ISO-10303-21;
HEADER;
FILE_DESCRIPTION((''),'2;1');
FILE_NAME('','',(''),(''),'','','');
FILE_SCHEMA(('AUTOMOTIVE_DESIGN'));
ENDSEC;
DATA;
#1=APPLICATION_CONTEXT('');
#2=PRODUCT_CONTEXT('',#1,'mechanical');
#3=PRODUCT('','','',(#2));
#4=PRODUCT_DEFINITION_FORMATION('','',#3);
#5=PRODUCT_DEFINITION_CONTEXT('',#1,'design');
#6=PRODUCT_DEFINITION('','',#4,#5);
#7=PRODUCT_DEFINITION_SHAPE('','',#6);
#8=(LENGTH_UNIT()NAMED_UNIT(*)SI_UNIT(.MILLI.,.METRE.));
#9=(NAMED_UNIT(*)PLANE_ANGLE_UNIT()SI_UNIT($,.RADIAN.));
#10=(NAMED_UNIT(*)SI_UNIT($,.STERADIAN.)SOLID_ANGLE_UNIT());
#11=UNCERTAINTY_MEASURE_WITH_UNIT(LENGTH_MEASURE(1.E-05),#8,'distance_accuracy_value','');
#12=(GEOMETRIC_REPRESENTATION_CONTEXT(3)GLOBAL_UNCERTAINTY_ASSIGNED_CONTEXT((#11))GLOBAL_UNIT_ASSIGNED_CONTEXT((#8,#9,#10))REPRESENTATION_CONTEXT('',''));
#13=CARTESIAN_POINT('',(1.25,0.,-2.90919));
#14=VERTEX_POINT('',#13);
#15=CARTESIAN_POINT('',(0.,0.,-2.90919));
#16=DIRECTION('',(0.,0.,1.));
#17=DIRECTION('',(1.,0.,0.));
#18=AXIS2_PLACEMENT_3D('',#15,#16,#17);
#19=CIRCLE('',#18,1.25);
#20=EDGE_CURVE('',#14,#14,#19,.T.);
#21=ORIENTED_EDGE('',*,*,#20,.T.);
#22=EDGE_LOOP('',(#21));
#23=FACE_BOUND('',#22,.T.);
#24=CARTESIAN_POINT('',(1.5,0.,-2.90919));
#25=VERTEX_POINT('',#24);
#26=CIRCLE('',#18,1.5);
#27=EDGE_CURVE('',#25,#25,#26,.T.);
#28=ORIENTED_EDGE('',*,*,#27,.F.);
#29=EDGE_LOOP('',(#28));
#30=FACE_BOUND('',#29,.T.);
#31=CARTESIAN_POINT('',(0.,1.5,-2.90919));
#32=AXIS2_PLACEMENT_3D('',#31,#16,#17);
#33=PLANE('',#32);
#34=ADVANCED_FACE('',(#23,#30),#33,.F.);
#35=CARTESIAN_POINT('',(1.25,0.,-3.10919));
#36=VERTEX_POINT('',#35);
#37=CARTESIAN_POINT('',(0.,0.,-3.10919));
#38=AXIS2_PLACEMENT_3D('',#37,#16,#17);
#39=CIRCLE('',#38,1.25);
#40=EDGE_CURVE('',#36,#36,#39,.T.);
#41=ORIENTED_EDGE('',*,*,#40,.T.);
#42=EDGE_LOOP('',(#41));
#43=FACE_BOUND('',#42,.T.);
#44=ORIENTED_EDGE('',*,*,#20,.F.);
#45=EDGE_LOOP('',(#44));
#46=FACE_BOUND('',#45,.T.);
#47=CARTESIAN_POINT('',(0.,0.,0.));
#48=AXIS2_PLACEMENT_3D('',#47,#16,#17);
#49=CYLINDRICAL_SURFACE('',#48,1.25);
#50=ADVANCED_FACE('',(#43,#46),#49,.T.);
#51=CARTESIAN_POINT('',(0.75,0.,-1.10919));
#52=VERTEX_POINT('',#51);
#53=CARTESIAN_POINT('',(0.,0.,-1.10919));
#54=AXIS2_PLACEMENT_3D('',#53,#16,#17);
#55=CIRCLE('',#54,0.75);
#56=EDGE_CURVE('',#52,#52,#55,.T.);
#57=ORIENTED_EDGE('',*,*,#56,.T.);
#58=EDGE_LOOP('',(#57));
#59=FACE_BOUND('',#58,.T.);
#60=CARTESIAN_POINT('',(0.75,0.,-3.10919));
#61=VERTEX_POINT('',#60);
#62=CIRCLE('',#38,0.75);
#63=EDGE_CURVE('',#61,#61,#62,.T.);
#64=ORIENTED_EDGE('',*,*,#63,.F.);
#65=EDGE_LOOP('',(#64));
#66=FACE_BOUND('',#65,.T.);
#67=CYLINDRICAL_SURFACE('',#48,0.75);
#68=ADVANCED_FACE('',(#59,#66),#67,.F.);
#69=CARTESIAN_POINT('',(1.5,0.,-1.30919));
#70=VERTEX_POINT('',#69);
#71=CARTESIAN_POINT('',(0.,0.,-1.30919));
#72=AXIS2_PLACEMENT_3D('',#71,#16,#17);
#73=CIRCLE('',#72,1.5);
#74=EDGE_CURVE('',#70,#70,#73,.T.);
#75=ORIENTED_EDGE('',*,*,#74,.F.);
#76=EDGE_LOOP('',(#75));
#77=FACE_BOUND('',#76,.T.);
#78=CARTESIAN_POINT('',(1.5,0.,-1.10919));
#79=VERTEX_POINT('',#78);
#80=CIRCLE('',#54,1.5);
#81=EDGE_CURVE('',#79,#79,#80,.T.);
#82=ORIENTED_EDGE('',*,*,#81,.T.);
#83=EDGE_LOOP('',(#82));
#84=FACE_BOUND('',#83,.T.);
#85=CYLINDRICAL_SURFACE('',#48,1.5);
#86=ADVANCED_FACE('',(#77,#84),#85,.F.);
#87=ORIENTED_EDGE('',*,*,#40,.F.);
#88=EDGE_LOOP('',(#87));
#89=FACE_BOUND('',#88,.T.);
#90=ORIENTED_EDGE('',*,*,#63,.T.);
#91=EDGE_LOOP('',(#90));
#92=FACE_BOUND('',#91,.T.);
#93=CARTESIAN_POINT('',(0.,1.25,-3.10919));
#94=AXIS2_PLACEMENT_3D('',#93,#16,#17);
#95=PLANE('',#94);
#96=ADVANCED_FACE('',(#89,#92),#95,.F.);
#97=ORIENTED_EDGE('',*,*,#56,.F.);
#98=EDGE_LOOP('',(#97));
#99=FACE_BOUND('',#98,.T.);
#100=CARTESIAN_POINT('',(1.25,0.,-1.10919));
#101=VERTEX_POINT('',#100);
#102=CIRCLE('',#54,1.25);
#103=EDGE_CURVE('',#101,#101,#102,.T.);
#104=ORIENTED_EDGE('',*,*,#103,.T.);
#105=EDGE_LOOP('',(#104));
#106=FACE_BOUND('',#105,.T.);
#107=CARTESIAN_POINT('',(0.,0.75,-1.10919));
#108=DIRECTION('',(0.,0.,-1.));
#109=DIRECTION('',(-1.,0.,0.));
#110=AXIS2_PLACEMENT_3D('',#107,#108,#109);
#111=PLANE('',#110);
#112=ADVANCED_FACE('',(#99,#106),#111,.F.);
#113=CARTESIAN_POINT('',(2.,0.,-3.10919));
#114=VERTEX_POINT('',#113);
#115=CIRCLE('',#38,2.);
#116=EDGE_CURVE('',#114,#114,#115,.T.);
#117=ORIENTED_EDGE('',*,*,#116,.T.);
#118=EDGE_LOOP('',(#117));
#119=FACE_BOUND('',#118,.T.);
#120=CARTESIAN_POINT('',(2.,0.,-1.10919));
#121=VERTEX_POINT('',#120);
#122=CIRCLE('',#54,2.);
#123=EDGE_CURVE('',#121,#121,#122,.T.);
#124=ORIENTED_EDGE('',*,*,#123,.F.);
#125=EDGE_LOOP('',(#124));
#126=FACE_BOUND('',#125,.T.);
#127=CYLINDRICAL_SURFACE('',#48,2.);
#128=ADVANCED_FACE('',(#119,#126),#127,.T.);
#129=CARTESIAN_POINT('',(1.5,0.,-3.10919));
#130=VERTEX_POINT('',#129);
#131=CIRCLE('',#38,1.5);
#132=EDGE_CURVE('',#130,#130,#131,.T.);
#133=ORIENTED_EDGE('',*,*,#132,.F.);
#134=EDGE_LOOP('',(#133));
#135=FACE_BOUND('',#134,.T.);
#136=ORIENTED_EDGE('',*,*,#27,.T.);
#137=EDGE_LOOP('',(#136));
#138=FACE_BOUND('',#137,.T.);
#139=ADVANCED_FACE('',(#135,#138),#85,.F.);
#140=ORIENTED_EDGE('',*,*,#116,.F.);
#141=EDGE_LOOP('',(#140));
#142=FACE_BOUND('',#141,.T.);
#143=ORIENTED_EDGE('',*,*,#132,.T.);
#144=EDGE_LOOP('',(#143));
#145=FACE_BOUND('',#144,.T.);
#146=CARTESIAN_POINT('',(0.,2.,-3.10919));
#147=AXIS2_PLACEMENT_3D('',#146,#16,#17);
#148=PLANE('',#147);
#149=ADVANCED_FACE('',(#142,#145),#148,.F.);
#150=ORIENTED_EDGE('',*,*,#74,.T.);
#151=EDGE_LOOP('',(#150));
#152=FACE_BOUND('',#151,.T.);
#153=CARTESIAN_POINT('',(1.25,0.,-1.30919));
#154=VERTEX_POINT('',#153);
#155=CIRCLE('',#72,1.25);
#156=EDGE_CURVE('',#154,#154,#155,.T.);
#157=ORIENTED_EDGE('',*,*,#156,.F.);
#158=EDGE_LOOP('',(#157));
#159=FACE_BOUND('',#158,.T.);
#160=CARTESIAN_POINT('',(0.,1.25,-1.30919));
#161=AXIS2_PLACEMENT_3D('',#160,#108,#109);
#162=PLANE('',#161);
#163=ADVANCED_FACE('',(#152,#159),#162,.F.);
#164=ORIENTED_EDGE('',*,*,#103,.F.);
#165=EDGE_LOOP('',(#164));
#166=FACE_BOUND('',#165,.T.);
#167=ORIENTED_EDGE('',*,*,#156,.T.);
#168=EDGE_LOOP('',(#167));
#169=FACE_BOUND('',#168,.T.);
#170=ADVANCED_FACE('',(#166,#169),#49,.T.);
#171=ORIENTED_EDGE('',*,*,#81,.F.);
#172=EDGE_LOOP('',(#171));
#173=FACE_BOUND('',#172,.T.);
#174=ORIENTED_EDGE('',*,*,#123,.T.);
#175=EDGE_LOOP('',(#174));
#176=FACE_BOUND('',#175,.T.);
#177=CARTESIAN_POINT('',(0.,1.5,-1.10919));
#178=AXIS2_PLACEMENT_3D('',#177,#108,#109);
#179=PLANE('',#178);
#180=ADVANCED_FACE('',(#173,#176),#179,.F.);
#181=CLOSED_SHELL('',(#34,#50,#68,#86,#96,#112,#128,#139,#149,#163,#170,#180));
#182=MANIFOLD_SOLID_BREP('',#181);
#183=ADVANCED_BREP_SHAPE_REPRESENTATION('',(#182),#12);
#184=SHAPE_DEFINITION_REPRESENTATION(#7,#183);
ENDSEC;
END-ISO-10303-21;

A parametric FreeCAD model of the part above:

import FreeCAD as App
import Part
import Sketcher
from FreeCAD import Vector

doc = App.newDocument("Part")
params = doc.addObject("Spreadsheet::Sheet", "Params")
for row, (alias, value) in enumerate([
    ("sketch1_height", "2 mm"),
    ("sketch1_width", "0.5 mm"),
    ("sketch1_height2", "0.2 mm"),
    ("sketch1_width2", "0.25 mm"),
    ("revolution_angle", "360 deg"),
], start=1):
    params.set(f"A{row}", alias)
    params.set(f"B{row}", "=" + value)
    params.setAlias(f"B{row}", alias)

body = doc.addObject("PartDesign::Body", "Body")

# Sketch on YZ plane
sketch1 = body.newObject("Sketcher::SketchObject", "Sketch")
sketch1.AttachmentSupport = (doc.getObject("YZ_Plane"), [""])
sketch1.MapMode = "FlatFace"
sketch1.addGeometry([
    Part.LineSegment(Vector(2, -3.11, 0), Vector(2, -1.11, 0)),  # 0
    Part.LineSegment(Vector(2, -1.11, 0), Vector(1.5, -1.11, 0)),  # 1
    Part.LineSegment(Vector(1.5, -1.11, 0), Vector(1.5, -1.31, 0)),  # 2
    Part.LineSegment(Vector(1.5, -1.31, 0), Vector(1.25, -1.31, 0)),  # 3
    Part.LineSegment(Vector(1.25, -1.31, 0), Vector(1.25, -1.11, 0)),  # 4
    Part.LineSegment(Vector(1.25, -1.11, 0), Vector(0.75, -1.11, 0)),  # 5
    Part.LineSegment(Vector(0.75, -1.11, 0), Vector(0.75, -3.11, 0)),  # 6
    Part.LineSegment(Vector(0.75, -3.11, 0), Vector(1.25, -3.11, 0)),  # 7
    Part.LineSegment(Vector(1.25, -3.11, 0), Vector(1.25, -2.91, 0)),  # 8
    Part.LineSegment(Vector(1.25, -2.91, 0), Vector(1.5, -2.91, 0)),  # 9
    Part.LineSegment(Vector(1.5, -2.91, 0), Vector(1.5, -3.11, 0)),  # 10
    Part.LineSegment(Vector(1.5, -3.11, 0), Vector(2, -3.11, 0)),  # 11
], False)
sketch1.addConstraint([
    Sketcher.Constraint("Coincident", 0, 2, 1, 1),
    Sketcher.Constraint("Coincident", 1, 2, 2, 1),
    Sketcher.Constraint("Coincident", 2, 2, 3, 1),
    Sketcher.Constraint("Coincident", 3, 2, 4, 1),
    Sketcher.Constraint("Coincident", 4, 2, 5, 1),
    Sketcher.Constraint("Coincident", 5, 2, 6, 1),
    Sketcher.Constraint("Coincident", 6, 2, 7, 1),
    Sketcher.Constraint("Coincident", 7, 2, 8, 1),
    Sketcher.Constraint("Coincident", 8, 2, 9, 1),
    Sketcher.Constraint("Coincident", 9, 2, 10, 1),
    Sketcher.Constraint("Coincident", 10, 2, 11, 1),
    Sketcher.Constraint("Coincident", 11, 2, 0, 1),
    Sketcher.Constraint("Vertical", 0),
    Sketcher.Constraint("Horizontal", 1),
    Sketcher.Constraint("Vertical", 2),
    Sketcher.Constraint("Horizontal", 3),
    Sketcher.Constraint("Vertical", 4),
    Sketcher.Constraint("Horizontal", 5),
    Sketcher.Constraint("Vertical", 6),
    Sketcher.Constraint("Horizontal", 7),
    Sketcher.Constraint("Vertical", 8),
    Sketcher.Constraint("Horizontal", 9),
    Sketcher.Constraint("Vertical", 10),
    Sketcher.Constraint("Horizontal", 11),
    Sketcher.Constraint("Horizontal", 1, 2, 4, 2),
    Sketcher.Constraint("Horizontal", 7, 2, 10, 2),
    Sketcher.Constraint("Vertical", 4, 2, 7, 2),
    Sketcher.Constraint("Vertical", 2, 2, 9, 2),
    Sketcher.Constraint("Equal", 1, 5),
    Sketcher.Constraint("Equal", 4, 8),
    Sketcher.Constraint("DistanceY", 0, 1, 0, 2, 2.0),
    Sketcher.Constraint("DistanceX", 1, 2, 1, 1, 0.5),
    Sketcher.Constraint("DistanceY", 2, 2, 2, 1, 0.2),
    Sketcher.Constraint("DistanceX", -1, 1, 0, 2, 2.0),
    Sketcher.Constraint("DistanceX", 3, 2, 3, 1, 0.25),
    Sketcher.Constraint("DistanceY", 0, 2, -1, 1, 1.10919),
])
sketch1.setExpression("Constraints[30]", "Params.sketch1_height")
sketch1.setExpression("Constraints[31]", "Params.sketch1_width")
sketch1.setExpression("Constraints[32]", "Params.sketch1_height2")
sketch1.setExpression("Constraints[34]", "Params.sketch1_width2")
revolution = body.newObject("PartDesign::Revolution", "Revolution")
revolution.Profile = sketch1
revolution.ReferenceAxis = (sketch1, ["V_Axis"])
revolution.setExpression("Angle", "Params.revolution_angle")

doc.recompute()
